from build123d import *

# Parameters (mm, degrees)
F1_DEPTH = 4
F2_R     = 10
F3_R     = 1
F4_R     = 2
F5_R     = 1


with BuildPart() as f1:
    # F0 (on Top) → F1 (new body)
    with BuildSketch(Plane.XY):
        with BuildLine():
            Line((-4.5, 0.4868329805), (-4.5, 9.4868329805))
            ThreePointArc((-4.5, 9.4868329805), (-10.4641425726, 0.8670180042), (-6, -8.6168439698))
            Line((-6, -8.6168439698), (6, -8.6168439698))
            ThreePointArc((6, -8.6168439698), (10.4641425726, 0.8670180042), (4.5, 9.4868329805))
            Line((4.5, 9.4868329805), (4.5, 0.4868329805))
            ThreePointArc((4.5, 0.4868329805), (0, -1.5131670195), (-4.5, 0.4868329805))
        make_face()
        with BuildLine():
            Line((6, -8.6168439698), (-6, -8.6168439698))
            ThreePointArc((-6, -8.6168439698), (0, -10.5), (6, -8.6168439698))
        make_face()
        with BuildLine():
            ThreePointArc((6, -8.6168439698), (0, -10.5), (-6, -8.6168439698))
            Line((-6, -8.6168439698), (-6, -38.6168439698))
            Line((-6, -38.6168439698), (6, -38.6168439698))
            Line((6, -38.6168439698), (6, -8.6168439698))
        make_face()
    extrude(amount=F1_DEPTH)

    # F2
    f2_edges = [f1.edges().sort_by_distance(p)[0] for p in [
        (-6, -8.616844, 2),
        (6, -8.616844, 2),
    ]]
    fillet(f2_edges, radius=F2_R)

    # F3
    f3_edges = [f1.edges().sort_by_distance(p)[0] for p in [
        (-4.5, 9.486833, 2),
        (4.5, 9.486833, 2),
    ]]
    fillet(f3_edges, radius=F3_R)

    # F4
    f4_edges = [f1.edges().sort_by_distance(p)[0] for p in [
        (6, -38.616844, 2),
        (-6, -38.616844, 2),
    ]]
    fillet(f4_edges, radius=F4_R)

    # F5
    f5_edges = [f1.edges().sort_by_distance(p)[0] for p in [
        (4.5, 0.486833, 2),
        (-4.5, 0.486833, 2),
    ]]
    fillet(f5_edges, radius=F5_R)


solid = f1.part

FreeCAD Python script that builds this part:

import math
import FreeCAD as App
import Part
import Sketcher


def edges_at(feature, points):
    """Names of the edges that pass closest to the given points."""
    edges = feature.Shape.Edges
    near = lambda p: min(range(len(edges)), key=lambda i: edges[i].distToShape(Part.Vertex(*p))[0])
    return sorted({f"Edge{near(p) + 1}" for p in points})

doc = App.newDocument("Part")
body = doc.addObject("PartDesign::Body", "Body")

# Sketch on XY plane
sketch1 = doc.addObject("Sketcher::SketchObject", "Sketch")
body.addObject(sketch1)
sketch1.AttachmentSupport = (doc.XY_Plane, [""])
sketch1.MapMode = "FlatFace"
sketch1.addGeometry(Part.LineSegment(App.Vector(-4.5, 0.486833, 0), App.Vector(-4.5, 9.486833, 0)), False)
sketch1.addGeometry(Part.ArcOfCircle(Part.Circle(App.Vector(0, 0, 0), App.Vector(0, 0, 1), 10.5), math.radians(115.376934), math.radians(235.150095)), False)
sketch1.addGeometry(Part.LineSegment(App.Vector(-6, -8.616844, 0), App.Vector(-6, -38.616844, 0)), False)
sketch1.addGeometry(Part.LineSegment(App.Vector(-6, -38.616844, 0), App.Vector(6, -38.616844, 0)), False)
sketch1.addGeometry(Part.LineSegment(App.Vector(6, -38.616844, 0), App.Vector(6, -8.616844, 0)), False)
sketch1.addGeometry(Part.ArcOfCircle(Part.Circle(App.Vector(0, 0, 0), App.Vector(0, 0, 1), 10.5), math.radians(-55.150095), math.radians(64.623066)), False)
sketch1.addGeometry(Part.LineSegment(App.Vector(4.5, 9.486833, 0), App.Vector(4.5, 0.486833, 0)), False)
sketch1.addGeometry(Part.ArcOfCircle(Part.Circle(App.Vector(0, 4.549333, 0), App.Vector(0, 0, 1), 6.0625), math.radians(-137.924978), math.radians(-42.075022)), False)
sketch1.addConstraint(Sketcher.Constraint("Coincident", 0, 2, 1, 1))
sketch1.addConstraint(Sketcher.Constraint("Coincident", 1, 2, 2, 1))
sketch1.addConstraint(Sketcher.Constraint("Coincident", 2, 2, 3, 1))
sketch1.addConstraint(Sketcher.Constraint("Coincident", 3, 2, 4, 1))
sketch1.addConstraint(Sketcher.Constraint("Coincident", 4, 2, 5, 1))
sketch1.addConstraint(Sketcher.Constraint("Coincident", 5, 2, 6, 1))
sketch1.addConstraint(Sketcher.Constraint("Coincident", 6, 2, 7, 2))
sketch1.addConstraint(Sketcher.Constraint("Coincident", 7, 1, 0, 1))
sketch1.addConstraint(Sketcher.Constraint("Vertical", 0))
sketch1.addConstraint(Sketcher.Constraint("Vertical", 2))
sketch1.addConstraint(Sketcher.Constraint("Horizontal", 3))
sketch1.addConstraint(Sketcher.Constraint("Vertical", 4))
sketch1.addConstraint(Sketcher.Constraint("Vertical", 6))
sketch1.addConstraint(Sketcher.Constraint("Coincident", 1, 3, -1, 1))
sketch1.addConstraint(Sketcher.Constraint("Coincident", 5, 3, -1, 1))
sketch1.addConstraint(Sketcher.Constraint("Equal", 1, 5))
sketch1.addConstraint(Sketcher.Constraint("Symmetric", 6, 2, 7, 1, -2))
sketch1.addConstraint(Sketcher.Constraint("Horizontal", 1, 2, 4, 2))
sketch1.addConstraint(Sketcher.Constraint("Radius", 1, 10.5))
sketch1.addConstraint(Sketcher.Constraint("DistanceX", 3, 1, 3, 2, 12.0))
sketch1.addConstraint(Sketcher.Constraint("DistanceY", 0, 1, 0, 2, 9.0))
sketch1.addConstraint(Sketcher.Constraint("DistanceY", 2, 2, 2, 1, 30.0))
sketch1.addConstraint(Sketcher.Constraint("DistanceX", 0, 2, 5, 2, 9.0))
sketch1.addConstraint(Sketcher.Constraint("Radius", 7, 6.0625))
pad1 = doc.addObject("PartDesign::Pad", "Pad")
body.addObject(pad1)
pad1.Profile = sketch1
pad1.Length = 4
doc.recompute()

fillet = doc.addObject("PartDesign::Fillet", "Fillet")
body.addObject(fillet)
fillet.Base = (pad1, edges_at(pad1, [(-6, -8.617, 2), (6, -8.617, 2)]))
fillet.Radius = 10
doc.recompute()

fillet2 = doc.addObject("PartDesign::Fillet", "Fillet001")
body.addObject(fillet2)
fillet2.Base = (fillet, edges_at(fillet, [(-4.5, 9.487, 2), (4.5, 9.487, 2)]))
fillet2.Radius = 1
doc.recompute()

fillet3 = doc.addObject("PartDesign::Fillet", "Fillet002")
body.addObject(fillet3)
fillet3.Base = (fillet2, edges_at(fillet2, [(6, -38.617, 2), (-6, -38.617, 2)]))
fillet3.Radius = 2
doc.recompute()

fillet4 = doc.addObject("PartDesign::Fillet", "Fillet003")
body.addObject(fillet4)
fillet4.Base = (fillet3, edges_at(fillet3, [(4.5, 0.487, 2), (-4.5, 0.487, 2)]))
fillet4.Radius = 1

doc.recompute()
